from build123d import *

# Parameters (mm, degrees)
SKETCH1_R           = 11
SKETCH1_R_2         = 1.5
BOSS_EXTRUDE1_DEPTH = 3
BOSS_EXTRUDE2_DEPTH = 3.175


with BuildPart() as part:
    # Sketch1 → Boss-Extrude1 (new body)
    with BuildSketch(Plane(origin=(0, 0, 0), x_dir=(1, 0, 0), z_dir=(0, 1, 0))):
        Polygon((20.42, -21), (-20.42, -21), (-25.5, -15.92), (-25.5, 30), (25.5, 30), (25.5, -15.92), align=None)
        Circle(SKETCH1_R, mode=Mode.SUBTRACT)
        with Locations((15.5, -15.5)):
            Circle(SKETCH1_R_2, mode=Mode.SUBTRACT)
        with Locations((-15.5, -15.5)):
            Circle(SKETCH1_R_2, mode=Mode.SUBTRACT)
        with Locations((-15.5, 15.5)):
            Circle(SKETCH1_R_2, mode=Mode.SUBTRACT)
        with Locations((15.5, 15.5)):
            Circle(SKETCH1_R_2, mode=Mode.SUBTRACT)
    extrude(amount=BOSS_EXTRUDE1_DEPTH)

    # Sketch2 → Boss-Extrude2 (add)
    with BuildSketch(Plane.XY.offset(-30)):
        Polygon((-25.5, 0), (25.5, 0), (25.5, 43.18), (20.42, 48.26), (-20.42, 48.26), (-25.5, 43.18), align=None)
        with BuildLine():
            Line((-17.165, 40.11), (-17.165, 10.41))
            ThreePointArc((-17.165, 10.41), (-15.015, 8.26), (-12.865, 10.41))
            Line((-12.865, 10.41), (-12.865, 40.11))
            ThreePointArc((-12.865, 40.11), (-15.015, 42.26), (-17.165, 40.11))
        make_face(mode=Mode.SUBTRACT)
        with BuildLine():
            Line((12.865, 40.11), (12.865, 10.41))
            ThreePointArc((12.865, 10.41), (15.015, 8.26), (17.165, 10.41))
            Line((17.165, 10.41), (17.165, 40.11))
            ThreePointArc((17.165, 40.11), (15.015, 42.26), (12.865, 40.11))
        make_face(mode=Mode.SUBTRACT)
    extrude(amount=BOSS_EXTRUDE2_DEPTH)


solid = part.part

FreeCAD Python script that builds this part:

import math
import FreeCAD as App
import Part
import Sketcher

V = App.Vector
Q = App.Units.Quantity


def add_polygon(sketch, points):
    """Adds a closed chain of lines whose ends are joined by coincident constraints."""
    first, n = sketch.GeometryCount, len(points)
    for a, b in zip(points, points[1:] + points[:1]):
        sketch.addGeometry(Part.LineSegment(App.Vector(*a, 0), App.Vector(*b, 0)), False)
    for i in range(n):
        sketch.addConstraint(Sketcher.Constraint("Coincident", first + i, 2, first + (i + 1) % n, 1))

doc = App.newDocument("Part")
body = doc.addObject("PartDesign::Body", "Body")

# Sketch on XZ plane
sketch1 = body.newObject("Sketcher::SketchObject", "Sketch")
sketch1.AttachmentSupport = (doc.getObject("XZ_Plane"), [""])
sketch1.MapMode = "FlatFace"
add_polygon(sketch1, [(-20.42, 21), (20.42, 21), (25.5, 15.92), (25.5, -30), (-25.5, -30), (-25.5, 15.92)])  # lines 0-5
sketch1.addGeometry(Part.Circle(V(15.5, 15.5, 0), V(0, 0, 1), 1.5), False)  # 6
sketch1.addGeometry(Part.Circle(V(-15.5, 15.5, 0), V(0, 0, 1), 1.5), False)  # 7
sketch1.addGeometry(Part.Circle(V(15.5, -15.5, 0), V(0, 0, 1), 1.5), False)  # 8
sketch1.addGeometry(Part.Circle(V(0, 0, 0), V(0, 0, 1), 11), False)  # 9
sketch1.addGeometry(Part.Circle(V(-15.5, -15.5, 0), V(0, 0, 1), 1.5), False)  # 10
sketch1.addConstraint([
    Sketcher.Constraint("Horizontal", 0),
    Sketcher.Constraint("Vertical", 2),
    Sketcher.Constraint("Horizontal", 3),
    Sketcher.Constraint("Vertical", 4),
    Sketcher.Constraint("Coincident", 9, 3, -1, 1),
    Sketcher.Constraint("Equal", 6, 7),
    Sketcher.Constraint("Equal", 7, 8),
    Sketcher.Constraint("Equal", 8, 10),
    Sketcher.Constraint("Symmetric", 7, 3, 8, 3, -1, 1),
    Sketcher.Constraint("Symmetric", 6, 3, 10, 3, -1, 1),
    Sketcher.Constraint("Symmetric", 6, 3, 7, 3, -2),
    Sketcher.Constraint("Symmetric", 1, 2, 4, 2, -2),
    Sketcher.Constraint("Perpendicular", 1, 5),
    Sketcher.Constraint("Equal", 1, 5),
    Sketcher.Constraint("Diameter", 6, Q("3 mm")),
    Sketcher.Constraint("Diameter", 9, Q("22 mm")),
    Sketcher.Constraint("DistanceX", 3, 2, 3, 1, Q("51 mm")),
    Sketcher.Constraint("DistanceY", -1, 1, 0, 2, Q("21 mm")),
    Sketcher.Constraint("DistanceY", 2, 2, -1, 1, Q("30 mm")),
    Sketcher.Constraint("DistanceX", 7, 3, 6, 3, Q("31 mm")),
    Sketcher.Constraint("DistanceY", 8, 3, 6, 3, Q("31 mm")),
    Sketcher.Constraint("DistanceX", 0, 1, 0, 2, Q("40.84 mm")),
])
pad1 = body.newObject("PartDesign::Pad", "Pad")
pad1.Profile = sketch1
pad1.Length = 3
pad1.Reversed = True

# Sketch on XY plane
sketch2 = body.newObject("Sketcher::SketchObject", "Sketch001")
sketch2.AttachmentSupport = (doc.getObject("XY_Plane"), [""])
sketch2.MapMode = "FlatFace"
sketch2.AttachmentOffset = App.Placement(V(0, 0, -30), App.Rotation())
add_polygon(sketch2, [(-25.5, 0), (25.5, 0), (25.5, 43.18), (20.42, 48.26), (-20.42, 48.26), (-25.5, 43.18)])  # lines 0-5
sketch2.addGeometry(Part.LineSegment(V(-17.165, 10.41, 0), V(-17.165, 40.11, 0)), False)  # 6
sketch2.addGeometry(Part.ArcOfCircle(Part.Circle(V(-15.015, 40.11, 0), V(0, 0, 1), 2.15), math.radians(0), math.radians(180)), False)  # 7
sketch2.addGeometry(Part.LineSegment(V(-12.865, 40.11, 0), V(-12.865, 10.41, 0)), False)  # 8
sketch2.addGeometry(Part.ArcOfCircle(Part.Circle(V(-15.015, 10.41, 0), V(0, 0, 1), 2.15), math.radians(180), math.radians(360)), False)  # 9
sketch2.addGeometry(Part.LineSegment(V(12.865, 10.41, 0), V(12.865, 40.11, 0)), False)  # 10
sketch2.addGeometry(Part.ArcOfCircle(Part.Circle(V(15.015, 40.11, 0), V(0, 0, 1), 2.15), math.radians(0), math.radians(180)), False)  # 11
sketch2.addGeometry(Part.LineSegment(V(17.165, 40.11, 0), V(17.165, 10.41, 0)), False)  # 12
sketch2.addGeometry(Part.ArcOfCircle(Part.Circle(V(15.015, 10.41, 0), V(0, 0, 1), 2.15), math.radians(180), math.radians(360)), False)  # 13
sketch2.addConstraint([
    Sketcher.Constraint("Tangent", 6, 2, 7, 2),
    Sketcher.Constraint("Tangent", 7, 1, 8, 1),
    Sketcher.Constraint("Tangent", 8, 2, 9, 2),
    Sketcher.Constraint("Tangent", 9, 1, 6, 1),
    Sketcher.Constraint("Tangent", 10, 2, 11, 2),
    Sketcher.Constraint("Tangent", 11, 1, 12, 1),
    Sketcher.Constraint("Tangent", 12, 2, 13, 2),
    Sketcher.Constraint("Tangent", 13, 1, 10, 1),
    Sketcher.Constraint("Horizontal", 0),
    Sketcher.Constraint("Vertical", 1),
    Sketcher.Constraint("Horizontal", 3),
    Sketcher.Constraint("Vertical", 5),
    Sketcher.Constraint("Vertical", 6),
    Sketcher.Constraint("Vertical", 8),
    Sketcher.Constraint("Vertical", 10),
    Sketcher.Constraint("Vertical", 12),
    Sketcher.Constraint("Equal", 9, 11),
    Sketcher.Constraint("Symmetric", 0, 2, 5, 2, -1, 1),
    Sketcher.Constraint("Symmetric", 7, 3, 11, 3, -2),
    Sketcher.Constraint("Perpendicular", 2, 4),
    Sketcher.Constraint("Horizontal", 9, 3, 13, 3),
    Sketcher.Constraint("Horizontal", 1, 2, 4, 2),
    Sketcher.Constraint("Equal", 2, 4),
    Sketcher.Constraint("DistanceX", 0, 1, 0, 2, Q("51 mm")),
    Sketcher.Constraint("Radius", 7, Q("2.15 mm")),
    Sketcher.Constraint("DistanceY", 6, 1, 6, 2, Q("29.7 mm")),
    Sketcher.Constraint("DistanceX", 3, 2, 3, 1, Q("40.84 mm")),
    Sketcher.Constraint("DistanceY", 1, 1, 1, 2, Q("43.18 mm")),
    Sketcher.Constraint("DistanceY", -1, 1, 7, 3, Q("40.11 mm")),
    Sketcher.Constraint("DistanceX", 7, 3, 11, 3, Q("30.03 mm")),
])
pad2 = body.newObject("PartDesign::Pad", "Pad001")
pad2.Profile = sketch2
pad2.Length = 3.175

doc.recompute()
